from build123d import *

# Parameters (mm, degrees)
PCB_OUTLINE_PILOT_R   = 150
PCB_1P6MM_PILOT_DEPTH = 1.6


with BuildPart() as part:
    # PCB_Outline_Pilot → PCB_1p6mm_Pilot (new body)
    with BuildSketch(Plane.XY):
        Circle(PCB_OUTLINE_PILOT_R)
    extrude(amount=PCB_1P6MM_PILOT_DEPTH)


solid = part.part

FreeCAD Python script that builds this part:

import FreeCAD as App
import Part
import Sketcher
Q = App.Units.Quantity

doc = App.newDocument("Part")
body = doc.addObject("PartDesign::Body", "Body")

sketch1 = doc.addObject("Sketcher::SketchObject", "Sketch")
body.addObject(sketch1)
sketch1.AttachmentSupport = (doc.XY_Plane, [""])
sketch1.MapMode = "FlatFace"
sketch1.addGeometry(Part.Circle(App.Vector(0, 0, 0), App.Vector(0, 0, 1), 150), False)
sketch1.addConstraint([
    Sketcher.Constraint("Coincident", 0, 3, -1, 1),
    Sketcher.Constraint("Diameter", 0, Q("300 mm")),
])
pad1 = doc.addObject("PartDesign::Pad", "Pad")
body.addObject(pad1)
pad1.Profile = sketch1
pad1.Length = 1.6

doc.recompute()
